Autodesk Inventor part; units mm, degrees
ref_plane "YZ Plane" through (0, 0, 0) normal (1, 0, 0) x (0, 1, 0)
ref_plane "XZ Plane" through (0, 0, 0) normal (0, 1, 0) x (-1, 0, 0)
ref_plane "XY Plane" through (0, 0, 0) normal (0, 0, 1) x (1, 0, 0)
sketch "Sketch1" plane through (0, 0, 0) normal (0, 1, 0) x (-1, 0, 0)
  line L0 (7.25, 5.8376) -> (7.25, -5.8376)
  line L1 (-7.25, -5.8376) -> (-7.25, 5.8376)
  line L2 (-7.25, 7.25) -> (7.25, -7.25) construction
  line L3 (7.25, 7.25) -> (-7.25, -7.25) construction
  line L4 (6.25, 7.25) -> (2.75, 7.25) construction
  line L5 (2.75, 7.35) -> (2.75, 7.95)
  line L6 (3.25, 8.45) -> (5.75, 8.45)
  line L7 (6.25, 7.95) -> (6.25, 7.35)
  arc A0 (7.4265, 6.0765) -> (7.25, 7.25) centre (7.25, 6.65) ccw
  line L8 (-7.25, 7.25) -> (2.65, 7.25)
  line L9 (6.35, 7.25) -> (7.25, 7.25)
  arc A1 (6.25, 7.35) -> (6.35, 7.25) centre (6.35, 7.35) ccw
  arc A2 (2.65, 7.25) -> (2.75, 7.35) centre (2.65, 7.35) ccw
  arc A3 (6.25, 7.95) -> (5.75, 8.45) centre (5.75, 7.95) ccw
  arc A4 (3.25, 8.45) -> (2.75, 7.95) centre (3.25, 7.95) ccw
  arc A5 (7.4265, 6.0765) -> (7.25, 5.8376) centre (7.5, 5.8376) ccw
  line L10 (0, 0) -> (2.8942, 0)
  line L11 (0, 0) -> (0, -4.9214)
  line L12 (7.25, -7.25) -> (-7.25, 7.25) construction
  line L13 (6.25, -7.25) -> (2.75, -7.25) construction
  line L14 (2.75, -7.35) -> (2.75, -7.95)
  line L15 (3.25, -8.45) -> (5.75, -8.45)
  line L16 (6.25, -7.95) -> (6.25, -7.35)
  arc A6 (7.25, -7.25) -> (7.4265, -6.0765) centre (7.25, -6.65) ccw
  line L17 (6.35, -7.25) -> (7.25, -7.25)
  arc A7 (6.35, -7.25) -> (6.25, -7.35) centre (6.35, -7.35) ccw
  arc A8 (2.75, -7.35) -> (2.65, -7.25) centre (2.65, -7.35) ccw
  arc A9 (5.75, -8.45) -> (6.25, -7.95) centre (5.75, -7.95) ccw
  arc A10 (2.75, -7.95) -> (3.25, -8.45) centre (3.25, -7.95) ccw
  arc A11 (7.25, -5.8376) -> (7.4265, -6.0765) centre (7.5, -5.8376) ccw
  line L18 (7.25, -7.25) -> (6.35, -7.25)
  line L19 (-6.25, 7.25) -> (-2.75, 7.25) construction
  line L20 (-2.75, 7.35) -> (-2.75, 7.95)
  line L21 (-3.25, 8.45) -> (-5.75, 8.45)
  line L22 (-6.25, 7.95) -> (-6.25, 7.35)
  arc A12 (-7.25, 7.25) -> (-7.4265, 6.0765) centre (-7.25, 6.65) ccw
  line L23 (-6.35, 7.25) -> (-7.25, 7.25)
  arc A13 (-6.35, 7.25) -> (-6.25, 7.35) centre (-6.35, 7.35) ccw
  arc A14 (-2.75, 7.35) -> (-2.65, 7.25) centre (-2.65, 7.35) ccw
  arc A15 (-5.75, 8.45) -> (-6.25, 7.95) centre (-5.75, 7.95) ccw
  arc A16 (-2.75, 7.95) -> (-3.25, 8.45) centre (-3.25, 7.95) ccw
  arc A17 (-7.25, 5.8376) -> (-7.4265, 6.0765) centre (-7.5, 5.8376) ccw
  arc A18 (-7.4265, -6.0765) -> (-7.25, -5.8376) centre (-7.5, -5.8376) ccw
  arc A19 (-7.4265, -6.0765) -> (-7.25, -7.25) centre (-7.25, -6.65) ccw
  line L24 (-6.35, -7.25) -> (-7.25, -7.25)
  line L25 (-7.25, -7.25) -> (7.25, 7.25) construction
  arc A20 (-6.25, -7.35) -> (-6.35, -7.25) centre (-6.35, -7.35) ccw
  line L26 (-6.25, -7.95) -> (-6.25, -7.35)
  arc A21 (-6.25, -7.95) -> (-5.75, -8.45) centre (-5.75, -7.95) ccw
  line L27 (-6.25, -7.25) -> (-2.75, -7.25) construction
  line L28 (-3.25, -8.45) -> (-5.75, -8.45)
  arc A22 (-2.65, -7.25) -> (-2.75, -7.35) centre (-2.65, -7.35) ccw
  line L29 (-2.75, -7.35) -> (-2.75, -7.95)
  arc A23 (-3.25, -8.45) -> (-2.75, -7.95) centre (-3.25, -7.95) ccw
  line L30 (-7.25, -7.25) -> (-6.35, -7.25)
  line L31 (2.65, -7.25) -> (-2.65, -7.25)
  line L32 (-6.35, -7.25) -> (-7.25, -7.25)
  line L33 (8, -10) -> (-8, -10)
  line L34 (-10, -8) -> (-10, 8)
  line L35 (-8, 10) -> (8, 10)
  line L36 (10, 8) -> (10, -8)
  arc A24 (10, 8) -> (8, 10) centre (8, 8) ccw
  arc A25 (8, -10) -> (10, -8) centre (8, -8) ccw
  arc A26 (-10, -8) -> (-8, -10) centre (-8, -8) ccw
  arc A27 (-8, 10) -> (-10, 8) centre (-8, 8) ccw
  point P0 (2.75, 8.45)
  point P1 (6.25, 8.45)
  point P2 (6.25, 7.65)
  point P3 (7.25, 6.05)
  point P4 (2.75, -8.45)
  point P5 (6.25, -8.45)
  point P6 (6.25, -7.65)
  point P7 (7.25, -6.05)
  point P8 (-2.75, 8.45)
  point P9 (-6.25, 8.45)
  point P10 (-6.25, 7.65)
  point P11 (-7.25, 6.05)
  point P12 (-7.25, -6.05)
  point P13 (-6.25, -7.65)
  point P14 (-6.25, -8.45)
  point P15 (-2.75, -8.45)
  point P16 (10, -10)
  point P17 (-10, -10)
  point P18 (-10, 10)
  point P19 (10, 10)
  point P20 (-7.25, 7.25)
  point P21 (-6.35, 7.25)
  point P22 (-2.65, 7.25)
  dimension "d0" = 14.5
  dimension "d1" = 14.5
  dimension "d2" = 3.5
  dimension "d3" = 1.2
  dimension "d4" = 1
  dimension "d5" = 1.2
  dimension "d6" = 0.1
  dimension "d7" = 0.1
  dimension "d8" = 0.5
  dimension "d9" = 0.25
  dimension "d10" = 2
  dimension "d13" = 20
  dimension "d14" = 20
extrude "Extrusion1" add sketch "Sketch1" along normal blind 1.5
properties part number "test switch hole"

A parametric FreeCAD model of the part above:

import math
import FreeCAD as App
import Part
import Sketcher
from FreeCAD import Vector
Q = App.Units.Quantity

doc = App.newDocument("Part")
body = doc.addObject("PartDesign::Body", "Body")

# Sketch on XZ plane
sketch1 = body.newObject("Sketcher::SketchObject", "Sketch")
sketch1.AttachmentSupport = (doc.getObject("XZ_Plane"), [""])
sketch1.MapMode = "FlatFace"
sketch1.addGeometry(Part.LineSegment(Vector(8, -10, 0), Vector(-8, -10, 0)), False)
sketch1.addGeometry(Part.ArcOfCircle(Part.Circle(Vector(-8, -8, 0), Vector(0, 0, 1), 2), math.radians(180), math.radians(270)), False)
sketch1.addGeometry(Part.LineSegment(Vector(-10, -8, 0), Vector(-10, 8, 0)), False)
sketch1.addGeometry(Part.ArcOfCircle(Part.Circle(Vector(-8, 8, 0), Vector(0, 0, 1), 2), math.radians(90), math.radians(180)), False)
sketch1.addGeometry(Part.LineSegment(Vector(-8, 10, 0), Vector(8, 10, 0)), False)
sketch1.addGeometry(Part.ArcOfCircle(Part.Circle(Vector(8, 8, 0), Vector(0, 0, 1), 2), math.radians(0), math.radians(90)), False)
sketch1.addGeometry(Part.LineSegment(Vector(10, 8, 0), Vector(10, -8, 0)), False)
sketch1.addGeometry(Part.ArcOfCircle(Part.Circle(Vector(8, -8, 0), Vector(0, 0, 1), 2), math.radians(-90), math.radians(0)), False)
sketch1.addGeometry(Part.ArcOfCircle(Part.Circle(Vector(-7.5, 5.84, 0), Vector(0, 0, 1), 0.25), math.radians(0), math.radians(73)), False)
sketch1.addGeometry(Part.LineSegment(Vector(-7.25, 5.84, 0), Vector(-7.25, -5.84, 0)), False)
sketch1.addGeometry(Part.ArcOfCircle(Part.Circle(Vector(-7.5, -5.84, 0), Vector(0, 0, 1), 0.25), math.radians(-73), math.radians(0)), False)
sketch1.addGeometry(Part.ArcOfCircle(Part.Circle(Vector(-7.25, -6.65, 0), Vector(0, 0, 1), 0.6), math.radians(107), math.radians(270)), False)
sketch1.addGeometry(Part.LineSegment(Vector(-7.25, -7.25, 0), Vector(-6.35, -7.25, 0)), False)
sketch1.addGeometry(Part.ArcOfCircle(Part.Circle(Vector(-6.35, -7.35, 0), Vector(0, 0, 1), 0.1), math.radians(0), math.radians(90)), False)
sketch1.addGeometry(Part.LineSegment(Vector(-6.25, -7.35, 0), Vector(-6.25, -7.95, 0)), False)
sketch1.addGeometry(Part.ArcOfCircle(Part.Circle(Vector(-5.75, -7.95, 0), Vector(0, 0, 1), 0.5), math.radians(180), math.radians(270)), False)
sketch1.addGeometry(Part.LineSegment(Vector(-5.75, -8.45, 0), Vector(-3.25, -8.45, 0)), False)
sketch1.addGeometry(Part.ArcOfCircle(Part.Circle(Vector(-3.25, -7.95, 0), Vector(0, 0, 1), 0.5), math.radians(-90), math.radians(0)), False)
sketch1.addGeometry(Part.LineSegment(Vector(-2.75, -7.95, 0), Vector(-2.75, -7.35, 0)), False)
sketch1.addGeometry(Part.ArcOfCircle(Part.Circle(Vector(-2.65, -7.35, 0), Vector(0, 0, 1), 0.1), math.radians(90), math.radians(180)), False)
sketch1.addGeometry(Part.LineSegment(Vector(-2.65, -7.25, 0), Vector(2.65, -7.25, 0)), False)
sketch1.addGeometry(Part.ArcOfCircle(Part.Circle(Vector(2.65, -7.35, 0), Vector(0, 0, 1), 0.1), math.radians(0), math.radians(90)), False)
sketch1.addGeometry(Part.LineSegment(Vector(2.75, -7.35, 0), Vector(2.75, -7.95, 0)), False)
sketch1.addGeometry(Part.ArcOfCircle(Part.Circle(Vector(3.25, -7.95, 0), Vector(0, 0, 1), 0.5), math.radians(180), math.radians(270)), False)
sketch1.addGeometry(Part.LineSegment(Vector(3.25, -8.45, 0), Vector(5.75, -8.45, 0)), False)
sketch1.addGeometry(Part.ArcOfCircle(Part.Circle(Vector(5.75, -7.95, 0), Vector(0, 0, 1), 0.5), math.radians(-90), math.radians(0)), False)
sketch1.addGeometry(Part.LineSegment(Vector(6.25, -7.95, 0), Vector(6.25, -7.35, 0)), False)
sketch1.addGeometry(Part.ArcOfCircle(Part.Circle(Vector(6.35, -7.35, 0), Vector(0, 0, 1), 0.1), math.radians(90), math.radians(180)), False)
sketch1.addGeometry(Part.LineSegment(Vector(6.35, -7.25, 0), Vector(7.25, -7.25, 0)), False)
sketch1.addGeometry(Part.ArcOfCircle(Part.Circle(Vector(7.25, -6.65, 0), Vector(0, 0, 1), 0.6), math.radians(-90), math.radians(73)), False)
sketch1.addGeometry(Part.ArcOfCircle(Part.Circle(Vector(7.5, -5.84, 0), Vector(0, 0, 1), 0.25), math.radians(180), math.radians(253)), False)
sketch1.addGeometry(Part.LineSegment(Vector(7.25, -5.84, 0), Vector(7.25, 5.84, 0)), False)
sketch1.addGeometry(Part.ArcOfCircle(Part.Circle(Vector(7.5, 5.84, 0), Vector(0, 0, 1), 0.25), math.radians(107), math.radians(180)), False)
sketch1.addGeometry(Part.ArcOfCircle(Part.Circle(Vector(7.25, 6.65, 0), Vector(0, 0, 1), 0.6), math.radians(-73), math.radians(90)), False)
sketch1.addGeometry(Part.LineSegment(Vector(7.25, 7.25, 0), Vector(6.35, 7.25, 0)), False)
sketch1.addGeometry(Part.ArcOfCircle(Part.Circle(Vector(6.35, 7.35, 0), Vector(0, 0, 1), 0.1), math.radians(180), math.radians(270)), False)
sketch1.addGeometry(Part.LineSegment(Vector(6.25, 7.35, 0), Vector(6.25, 7.95, 0)), False)
sketch1.addGeometry(Part.ArcOfCircle(Part.Circle(Vector(5.75, 7.95, 0), Vector(0, 0, 1), 0.5), math.radians(0), math.radians(90)), False)
sketch1.addGeometry(Part.LineSegment(Vector(5.75, 8.45, 0), Vector(3.25, 8.45, 0)), False)
sketch1.addGeometry(Part.ArcOfCircle(Part.Circle(Vector(3.25, 7.95, 0), Vector(0, 0, 1), 0.5), math.radians(90), math.radians(180)), False)
sketch1.addGeometry(Part.LineSegment(Vector(2.75, 7.95, 0), Vector(2.75, 7.35, 0)), False)
sketch1.addGeometry(Part.ArcOfCircle(Part.Circle(Vector(2.65, 7.35, 0), Vector(0, 0, 1), 0.1), math.radians(-90), math.radians(0)), False)
sketch1.addGeometry(Part.LineSegment(Vector(2.65, 7.25, 0), Vector(-2.65, 7.25, 0)), False)
sketch1.addGeometry(Part.ArcOfCircle(Part.Circle(Vector(-2.65, 7.35, 0), Vector(0, 0, 1), 0.1), math.radians(180), math.radians(270)), False)
sketch1.addGeometry(Part.LineSegment(Vector(-2.75, 7.35, 0), Vector(-2.75, 7.95, 0)), False)
sketch1.addGeometry(Part.ArcOfCircle(Part.Circle(Vector(-3.25, 7.95, 0), Vector(0, 0, 1), 0.5), math.radians(0), math.radians(90)), False)
sketch1.addGeometry(Part.LineSegment(Vector(-3.25, 8.45, 0), Vector(-5.75, 8.45, 0)), False)
sketch1.addGeometry(Part.ArcOfCircle(Part.Circle(Vector(-5.75, 7.95, 0), Vector(0, 0, 1), 0.5), math.radians(90), math.radians(180)), False)
sketch1.addGeometry(Part.LineSegment(Vector(-6.25, 7.95, 0), Vector(-6.25, 7.35, 0)), False)
sketch1.addGeometry(Part.ArcOfCircle(Part.Circle(Vector(-6.35, 7.35, 0), Vector(0, 0, 1), 0.1), math.radians(-90), math.radians(0)), False)
sketch1.addGeometry(Part.LineSegment(Vector(-6.35, 7.25, 0), Vector(-7.25, 7.25, 0)), False)
sketch1.addGeometry(Part.ArcOfCircle(Part.Circle(Vector(-7.25, 6.65, 0), Vector(0, 0, 1), 0.6), math.radians(90), math.radians(253)), False)
sketch1.addConstraint(Sketcher.Constraint("Tangent", 0, 2, 1, 2))
sketch1.addConstraint(Sketcher.Constraint("Tangent", 1, 1, 2, 1))
sketch1.addConstraint(Sketcher.Constraint("Tangent", 2, 2, 3, 2))
sketch1.addConstraint(Sketcher.Constraint("Tangent", 3, 1, 4, 1))
sketch1.addConstraint(Sketcher.Constraint("Tangent", 4, 2, 5, 2))
sketch1.addConstraint(Sketcher.Constraint("Tangent", 5, 1, 6, 1))
sketch1.addConstraint(Sketcher.Constraint("Tangent", 6, 2, 7, 2))
sketch1.addConstraint(Sketcher.Constraint("Tangent", 7, 1, 0, 1))
sketch1.addConstraint(Sketcher.Constraint("Tangent", 8, 1, 9, 1))
sketch1.addConstraint(Sketcher.Constraint("Tangent", 9, 2, 10, 2))
sketch1.addConstraint(Sketcher.Constraint("Tangent", 10, 1, 11, 1))
sketch1.addConstraint(Sketcher.Constraint("Tangent", 11, 2, 12, 1))
sketch1.addConstraint(Sketcher.Constraint("Tangent", 12, 2, 13, 2))
sketch1.addConstraint(Sketcher.Constraint("Tangent", 13, 1, 14, 1))
sketch1.addConstraint(Sketcher.Constraint("Tangent", 14, 2, 15, 1))
sketch1.addConstraint(Sketcher.Constraint("Tangent", 15, 2, 16, 1))
sketch1.addConstraint(Sketcher.Constraint("Tangent", 16, 2, 17, 1))
sketch1.addConstraint(Sketcher.Constraint("Tangent", 17, 2, 18, 1))
sketch1.addConstraint(Sketcher.Constraint("Tangent", 18, 2, 19, 2))
sketch1.addConstraint(Sketcher.Constraint("Tangent", 19, 1, 20, 1))
sketch1.addConstraint(Sketcher.Constraint("Tangent", 20, 2, 21, 2))
sketch1.addConstraint(Sketcher.Constraint("Tangent", 21, 1, 22, 1))
sketch1.addConstraint(Sketcher.Constraint("Tangent", 22, 2, 23, 1))
sketch1.addConstraint(Sketcher.Constraint("Tangent", 23, 2, 24, 1))
sketch1.addConstraint(Sketcher.Constraint("Tangent", 24, 2, 25, 1))
sketch1.addConstraint(Sketcher.Constraint("Tangent", 25, 2, 26, 1))
sketch1.addConstraint(Sketcher.Constraint("Tangent", 26, 2, 27, 2))
sketch1.addConstraint(Sketcher.Constraint("Tangent", 27, 1, 28, 1))
sketch1.addConstraint(Sketcher.Constraint("Tangent", 28, 2, 29, 1))
sketch1.addConstraint(Sketcher.Constraint("Tangent", 29, 2, 30, 2))
sketch1.addConstraint(Sketcher.Constraint("Tangent", 30, 1, 31, 1))
sketch1.addConstraint(Sketcher.Constraint("Tangent", 31, 2, 32, 2))
sketch1.addConstraint(Sketcher.Constraint("Tangent", 32, 1, 33, 1))
sketch1.addConstraint(Sketcher.Constraint("Tangent", 33, 2, 34, 1))
sketch1.addConstraint(Sketcher.Constraint("Tangent", 34, 2, 35, 2))
sketch1.addConstraint(Sketcher.Constraint("Tangent", 35, 1, 36, 1))
sketch1.addConstraint(Sketcher.Constraint("Tangent", 36, 2, 37, 1))
sketch1.addConstraint(Sketcher.Constraint("Tangent", 37, 2, 38, 1))
sketch1.addConstraint(Sketcher.Constraint("Tangent", 38, 2, 39, 1))
sketch1.addConstraint(Sketcher.Constraint("Tangent", 39, 2, 40, 1))
sketch1.addConstraint(Sketcher.Constraint("Tangent", 40, 2, 41, 2))
sketch1.addConstraint(Sketcher.Constraint("Tangent", 41, 1, 42, 1))
sketch1.addConstraint(Sketcher.Constraint("Tangent", 42, 2, 43, 2))
sketch1.addConstraint(Sketcher.Constraint("Tangent", 43, 1, 44, 1))
sketch1.addConstraint(Sketcher.Constraint("Tangent", 44, 2, 45, 1))
sketch1.addConstraint(Sketcher.Constraint("Tangent", 45, 2, 46, 1))
sketch1.addConstraint(Sketcher.Constraint("Tangent", 46, 2, 47, 1))
sketch1.addConstraint(Sketcher.Constraint("Tangent", 47, 2, 48, 1))
sketch1.addConstraint(Sketcher.Constraint("Tangent", 48, 2, 49, 2))
sketch1.addConstraint(Sketcher.Constraint("Tangent", 49, 1, 50, 1))
sketch1.addConstraint(Sketcher.Constraint("Tangent", 50, 2, 51, 1))
sketch1.addConstraint(Sketcher.Constraint("Tangent", 51, 2, 8, 2))
sketch1.addConstraint(Sketcher.Constraint("Horizontal", 0))
sketch1.addConstraint(Sketcher.Constraint("Vertical", 2))
sketch1.addConstraint(Sketcher.Constraint("Horizontal", 4))
sketch1.addConstraint(Sketcher.Constraint("Vertical", 6))
sketch1.addConstraint(Sketcher.Constraint("Vertical", 9))
sketch1.addConstraint(Sketcher.Constraint("Horizontal", 12))
sketch1.addConstraint(Sketcher.Constraint("Vertical", 14))
sketch1.addConstraint(Sketcher.Constraint("Horizontal", 16))
sketch1.addConstraint(Sketcher.Constraint("Vertical", 18))
sketch1.addConstraint(Sketcher.Constraint("Horizontal", 20))
sketch1.addConstraint(Sketcher.Constraint("Vertical", 22))
sketch1.addConstraint(Sketcher.Constraint("Horizontal", 24))
sketch1.addConstraint(Sketcher.Constraint("Vertical", 26))
sketch1.addConstraint(Sketcher.Constraint("Horizontal", 28))
sketch1.addConstraint(Sketcher.Constraint("Vertical", 31))
sketch1.addConstraint(Sketcher.Constraint("Horizontal", 34))
sketch1.addConstraint(Sketcher.Constraint("Vertical", 36))
sketch1.addConstraint(Sketcher.Constraint("Horizontal", 38))
sketch1.addConstraint(Sketcher.Constraint("Vertical", 40))
sketch1.addConstraint(Sketcher.Constraint("Horizontal", 42))
sketch1.addConstraint(Sketcher.Constraint("Vertical", 44))
sketch1.addConstraint(Sketcher.Constraint("Horizontal", 46))
sketch1.addConstraint(Sketcher.Constraint("Vertical", 48))
sketch1.addConstraint(Sketcher.Constraint("Horizontal", 50))
sketch1.addConstraint(Sketcher.Constraint("Equal", 1, 3))
sketch1.addConstraint(Sketcher.Constraint("Equal", 3, 5))
sketch1.addConstraint(Sketcher.Constraint("Equal", 5, 7))
sketch1.addConstraint(Sketcher.Constraint("Equal", 8, 10))
sketch1.addConstraint(Sketcher.Constraint("Equal", 15, 17))
sketch1.addConstraint(Sketcher.Constraint("Equal", 13, 19))
sketch1.addConstraint(Sketcher.Constraint("Equal", 19, 21))
sketch1.addConstraint(Sketcher.Constraint("Equal", 17, 23))
sketch1.addConstraint(Sketcher.Constraint("Equal", 23, 25))
sketch1.addConstraint(Sketcher.Constraint("Equal", 21, 27))
sketch1.addConstraint(Sketcher.Constraint("Equal", 11, 29))
sketch1.addConstraint(Sketcher.Constraint("Equal", 10, 30))
sketch1.addConstraint(Sketcher.Constraint("Equal", 30, 32))
sketch1.addConstraint(Sketcher.Constraint("Equal", 29, 33))
sketch1.addConstraint(Sketcher.Constraint("Equal", 27, 35))
sketch1.addConstraint(Sketcher.Constraint("Equal", 25, 37))
sketch1.addConstraint(Sketcher.Constraint("Equal", 37, 39))
sketch1.addConstraint(Sketcher.Constraint("Equal", 35, 41))
sketch1.addConstraint(Sketcher.Constraint("Equal", 41, 43))
sketch1.addConstraint(Sketcher.Constraint("Equal", 39, 45))
sketch1.addConstraint(Sketcher.Constraint("Equal", 45, 47))
sketch1.addConstraint(Sketcher.Constraint("Equal", 43, 49))
sketch1.addConstraint(Sketcher.Constraint("Equal", 33, 51))
sketch1.addConstraint(Sketcher.Constraint("Symmetric", 1, 3, 5, 3, -1, 1))
sketch1.addConstraint(Sketcher.Constraint("Symmetric", 8, 3, 30, 3, -1, 1))
sketch1.addConstraint(Sketcher.Constraint("Symmetric", 11, 3, 33, 3, -1, 1))
sketch1.addConstraint(Sketcher.Constraint("Symmetric", 15, 3, 37, 3, -1, 1))
sketch1.addConstraint(Sketcher.Constraint("Symmetric", 19, 3, 41, 3, -1, 1))
sketch1.addConstraint(Sketcher.Constraint("Symmetric", 23, 3, 45, 3, -1, 1))
sketch1.addConstraint(Sketcher.Constraint("Symmetric", 27, 3, 49, 3, -1, 1))
sketch1.addConstraint(Sketcher.Constraint("Symmetric", 17, 3, 23, 3, -2))
sketch1.addConstraint(Sketcher.Constraint("Symmetric", 13, 3, 27, 3, -2))
sketch1.addConstraint(Sketcher.Constraint("Horizontal", 13, 3, 19, 3))
sketch1.addConstraint(Sketcher.Constraint("Horizontal", 10, 3, 30, 3))
sketch1.addConstraint(Sketcher.Constraint("Vertical", 51, 3, 8, 1))
sketch1.addConstraint(Sketcher.Constraint("Equal", 4, 2))
sketch1.addConstraint(Sketcher.Constraint("Radius", 1, Q("2 mm")))
sketch1.addConstraint(Sketcher.Constraint("Radius", 11, Q("0.6 mm")))
sketch1.addConstraint(Sketcher.Constraint("Radius", 13, Q("0.1 mm")))
sketch1.addConstraint(Sketcher.Constraint("Radius", 15, Q("0.5 mm")))
sketch1.addConstraint(Sketcher.Constraint("Radius", 8, Q("0.25 mm")))
sketch1.addConstraint(Sketcher.Constraint("DistanceX", 0, 2, 0, 1, Q("16 mm")))
sketch1.addConstraint(Sketcher.Constraint("DistanceX", 12, 1, 12, 2, Q("0.9 mm")))
sketch1.addConstraint(Sketcher.Constraint("DistanceX", 16, 1, 16, 2, Q("2.5 mm")))
sketch1.addConstraint(Sketcher.Constraint("DistanceX", 20, 1, 20, 2, Q("5.3 mm")))
sketch1.addConstraint(Sketcher.Constraint("DistanceY", 14, 2, 14, 1, Q("0.6 mm")))
sketch1.addConstraint(Sketcher.Constraint("DistanceY", 11, 3, -1, 1, Q("6.65 mm")))
pad1 = body.newObject("PartDesign::Pad", "Pad")
pad1.Profile = sketch1
pad1.Length = 1.5
pad1.Reversed = True

doc.recompute()
